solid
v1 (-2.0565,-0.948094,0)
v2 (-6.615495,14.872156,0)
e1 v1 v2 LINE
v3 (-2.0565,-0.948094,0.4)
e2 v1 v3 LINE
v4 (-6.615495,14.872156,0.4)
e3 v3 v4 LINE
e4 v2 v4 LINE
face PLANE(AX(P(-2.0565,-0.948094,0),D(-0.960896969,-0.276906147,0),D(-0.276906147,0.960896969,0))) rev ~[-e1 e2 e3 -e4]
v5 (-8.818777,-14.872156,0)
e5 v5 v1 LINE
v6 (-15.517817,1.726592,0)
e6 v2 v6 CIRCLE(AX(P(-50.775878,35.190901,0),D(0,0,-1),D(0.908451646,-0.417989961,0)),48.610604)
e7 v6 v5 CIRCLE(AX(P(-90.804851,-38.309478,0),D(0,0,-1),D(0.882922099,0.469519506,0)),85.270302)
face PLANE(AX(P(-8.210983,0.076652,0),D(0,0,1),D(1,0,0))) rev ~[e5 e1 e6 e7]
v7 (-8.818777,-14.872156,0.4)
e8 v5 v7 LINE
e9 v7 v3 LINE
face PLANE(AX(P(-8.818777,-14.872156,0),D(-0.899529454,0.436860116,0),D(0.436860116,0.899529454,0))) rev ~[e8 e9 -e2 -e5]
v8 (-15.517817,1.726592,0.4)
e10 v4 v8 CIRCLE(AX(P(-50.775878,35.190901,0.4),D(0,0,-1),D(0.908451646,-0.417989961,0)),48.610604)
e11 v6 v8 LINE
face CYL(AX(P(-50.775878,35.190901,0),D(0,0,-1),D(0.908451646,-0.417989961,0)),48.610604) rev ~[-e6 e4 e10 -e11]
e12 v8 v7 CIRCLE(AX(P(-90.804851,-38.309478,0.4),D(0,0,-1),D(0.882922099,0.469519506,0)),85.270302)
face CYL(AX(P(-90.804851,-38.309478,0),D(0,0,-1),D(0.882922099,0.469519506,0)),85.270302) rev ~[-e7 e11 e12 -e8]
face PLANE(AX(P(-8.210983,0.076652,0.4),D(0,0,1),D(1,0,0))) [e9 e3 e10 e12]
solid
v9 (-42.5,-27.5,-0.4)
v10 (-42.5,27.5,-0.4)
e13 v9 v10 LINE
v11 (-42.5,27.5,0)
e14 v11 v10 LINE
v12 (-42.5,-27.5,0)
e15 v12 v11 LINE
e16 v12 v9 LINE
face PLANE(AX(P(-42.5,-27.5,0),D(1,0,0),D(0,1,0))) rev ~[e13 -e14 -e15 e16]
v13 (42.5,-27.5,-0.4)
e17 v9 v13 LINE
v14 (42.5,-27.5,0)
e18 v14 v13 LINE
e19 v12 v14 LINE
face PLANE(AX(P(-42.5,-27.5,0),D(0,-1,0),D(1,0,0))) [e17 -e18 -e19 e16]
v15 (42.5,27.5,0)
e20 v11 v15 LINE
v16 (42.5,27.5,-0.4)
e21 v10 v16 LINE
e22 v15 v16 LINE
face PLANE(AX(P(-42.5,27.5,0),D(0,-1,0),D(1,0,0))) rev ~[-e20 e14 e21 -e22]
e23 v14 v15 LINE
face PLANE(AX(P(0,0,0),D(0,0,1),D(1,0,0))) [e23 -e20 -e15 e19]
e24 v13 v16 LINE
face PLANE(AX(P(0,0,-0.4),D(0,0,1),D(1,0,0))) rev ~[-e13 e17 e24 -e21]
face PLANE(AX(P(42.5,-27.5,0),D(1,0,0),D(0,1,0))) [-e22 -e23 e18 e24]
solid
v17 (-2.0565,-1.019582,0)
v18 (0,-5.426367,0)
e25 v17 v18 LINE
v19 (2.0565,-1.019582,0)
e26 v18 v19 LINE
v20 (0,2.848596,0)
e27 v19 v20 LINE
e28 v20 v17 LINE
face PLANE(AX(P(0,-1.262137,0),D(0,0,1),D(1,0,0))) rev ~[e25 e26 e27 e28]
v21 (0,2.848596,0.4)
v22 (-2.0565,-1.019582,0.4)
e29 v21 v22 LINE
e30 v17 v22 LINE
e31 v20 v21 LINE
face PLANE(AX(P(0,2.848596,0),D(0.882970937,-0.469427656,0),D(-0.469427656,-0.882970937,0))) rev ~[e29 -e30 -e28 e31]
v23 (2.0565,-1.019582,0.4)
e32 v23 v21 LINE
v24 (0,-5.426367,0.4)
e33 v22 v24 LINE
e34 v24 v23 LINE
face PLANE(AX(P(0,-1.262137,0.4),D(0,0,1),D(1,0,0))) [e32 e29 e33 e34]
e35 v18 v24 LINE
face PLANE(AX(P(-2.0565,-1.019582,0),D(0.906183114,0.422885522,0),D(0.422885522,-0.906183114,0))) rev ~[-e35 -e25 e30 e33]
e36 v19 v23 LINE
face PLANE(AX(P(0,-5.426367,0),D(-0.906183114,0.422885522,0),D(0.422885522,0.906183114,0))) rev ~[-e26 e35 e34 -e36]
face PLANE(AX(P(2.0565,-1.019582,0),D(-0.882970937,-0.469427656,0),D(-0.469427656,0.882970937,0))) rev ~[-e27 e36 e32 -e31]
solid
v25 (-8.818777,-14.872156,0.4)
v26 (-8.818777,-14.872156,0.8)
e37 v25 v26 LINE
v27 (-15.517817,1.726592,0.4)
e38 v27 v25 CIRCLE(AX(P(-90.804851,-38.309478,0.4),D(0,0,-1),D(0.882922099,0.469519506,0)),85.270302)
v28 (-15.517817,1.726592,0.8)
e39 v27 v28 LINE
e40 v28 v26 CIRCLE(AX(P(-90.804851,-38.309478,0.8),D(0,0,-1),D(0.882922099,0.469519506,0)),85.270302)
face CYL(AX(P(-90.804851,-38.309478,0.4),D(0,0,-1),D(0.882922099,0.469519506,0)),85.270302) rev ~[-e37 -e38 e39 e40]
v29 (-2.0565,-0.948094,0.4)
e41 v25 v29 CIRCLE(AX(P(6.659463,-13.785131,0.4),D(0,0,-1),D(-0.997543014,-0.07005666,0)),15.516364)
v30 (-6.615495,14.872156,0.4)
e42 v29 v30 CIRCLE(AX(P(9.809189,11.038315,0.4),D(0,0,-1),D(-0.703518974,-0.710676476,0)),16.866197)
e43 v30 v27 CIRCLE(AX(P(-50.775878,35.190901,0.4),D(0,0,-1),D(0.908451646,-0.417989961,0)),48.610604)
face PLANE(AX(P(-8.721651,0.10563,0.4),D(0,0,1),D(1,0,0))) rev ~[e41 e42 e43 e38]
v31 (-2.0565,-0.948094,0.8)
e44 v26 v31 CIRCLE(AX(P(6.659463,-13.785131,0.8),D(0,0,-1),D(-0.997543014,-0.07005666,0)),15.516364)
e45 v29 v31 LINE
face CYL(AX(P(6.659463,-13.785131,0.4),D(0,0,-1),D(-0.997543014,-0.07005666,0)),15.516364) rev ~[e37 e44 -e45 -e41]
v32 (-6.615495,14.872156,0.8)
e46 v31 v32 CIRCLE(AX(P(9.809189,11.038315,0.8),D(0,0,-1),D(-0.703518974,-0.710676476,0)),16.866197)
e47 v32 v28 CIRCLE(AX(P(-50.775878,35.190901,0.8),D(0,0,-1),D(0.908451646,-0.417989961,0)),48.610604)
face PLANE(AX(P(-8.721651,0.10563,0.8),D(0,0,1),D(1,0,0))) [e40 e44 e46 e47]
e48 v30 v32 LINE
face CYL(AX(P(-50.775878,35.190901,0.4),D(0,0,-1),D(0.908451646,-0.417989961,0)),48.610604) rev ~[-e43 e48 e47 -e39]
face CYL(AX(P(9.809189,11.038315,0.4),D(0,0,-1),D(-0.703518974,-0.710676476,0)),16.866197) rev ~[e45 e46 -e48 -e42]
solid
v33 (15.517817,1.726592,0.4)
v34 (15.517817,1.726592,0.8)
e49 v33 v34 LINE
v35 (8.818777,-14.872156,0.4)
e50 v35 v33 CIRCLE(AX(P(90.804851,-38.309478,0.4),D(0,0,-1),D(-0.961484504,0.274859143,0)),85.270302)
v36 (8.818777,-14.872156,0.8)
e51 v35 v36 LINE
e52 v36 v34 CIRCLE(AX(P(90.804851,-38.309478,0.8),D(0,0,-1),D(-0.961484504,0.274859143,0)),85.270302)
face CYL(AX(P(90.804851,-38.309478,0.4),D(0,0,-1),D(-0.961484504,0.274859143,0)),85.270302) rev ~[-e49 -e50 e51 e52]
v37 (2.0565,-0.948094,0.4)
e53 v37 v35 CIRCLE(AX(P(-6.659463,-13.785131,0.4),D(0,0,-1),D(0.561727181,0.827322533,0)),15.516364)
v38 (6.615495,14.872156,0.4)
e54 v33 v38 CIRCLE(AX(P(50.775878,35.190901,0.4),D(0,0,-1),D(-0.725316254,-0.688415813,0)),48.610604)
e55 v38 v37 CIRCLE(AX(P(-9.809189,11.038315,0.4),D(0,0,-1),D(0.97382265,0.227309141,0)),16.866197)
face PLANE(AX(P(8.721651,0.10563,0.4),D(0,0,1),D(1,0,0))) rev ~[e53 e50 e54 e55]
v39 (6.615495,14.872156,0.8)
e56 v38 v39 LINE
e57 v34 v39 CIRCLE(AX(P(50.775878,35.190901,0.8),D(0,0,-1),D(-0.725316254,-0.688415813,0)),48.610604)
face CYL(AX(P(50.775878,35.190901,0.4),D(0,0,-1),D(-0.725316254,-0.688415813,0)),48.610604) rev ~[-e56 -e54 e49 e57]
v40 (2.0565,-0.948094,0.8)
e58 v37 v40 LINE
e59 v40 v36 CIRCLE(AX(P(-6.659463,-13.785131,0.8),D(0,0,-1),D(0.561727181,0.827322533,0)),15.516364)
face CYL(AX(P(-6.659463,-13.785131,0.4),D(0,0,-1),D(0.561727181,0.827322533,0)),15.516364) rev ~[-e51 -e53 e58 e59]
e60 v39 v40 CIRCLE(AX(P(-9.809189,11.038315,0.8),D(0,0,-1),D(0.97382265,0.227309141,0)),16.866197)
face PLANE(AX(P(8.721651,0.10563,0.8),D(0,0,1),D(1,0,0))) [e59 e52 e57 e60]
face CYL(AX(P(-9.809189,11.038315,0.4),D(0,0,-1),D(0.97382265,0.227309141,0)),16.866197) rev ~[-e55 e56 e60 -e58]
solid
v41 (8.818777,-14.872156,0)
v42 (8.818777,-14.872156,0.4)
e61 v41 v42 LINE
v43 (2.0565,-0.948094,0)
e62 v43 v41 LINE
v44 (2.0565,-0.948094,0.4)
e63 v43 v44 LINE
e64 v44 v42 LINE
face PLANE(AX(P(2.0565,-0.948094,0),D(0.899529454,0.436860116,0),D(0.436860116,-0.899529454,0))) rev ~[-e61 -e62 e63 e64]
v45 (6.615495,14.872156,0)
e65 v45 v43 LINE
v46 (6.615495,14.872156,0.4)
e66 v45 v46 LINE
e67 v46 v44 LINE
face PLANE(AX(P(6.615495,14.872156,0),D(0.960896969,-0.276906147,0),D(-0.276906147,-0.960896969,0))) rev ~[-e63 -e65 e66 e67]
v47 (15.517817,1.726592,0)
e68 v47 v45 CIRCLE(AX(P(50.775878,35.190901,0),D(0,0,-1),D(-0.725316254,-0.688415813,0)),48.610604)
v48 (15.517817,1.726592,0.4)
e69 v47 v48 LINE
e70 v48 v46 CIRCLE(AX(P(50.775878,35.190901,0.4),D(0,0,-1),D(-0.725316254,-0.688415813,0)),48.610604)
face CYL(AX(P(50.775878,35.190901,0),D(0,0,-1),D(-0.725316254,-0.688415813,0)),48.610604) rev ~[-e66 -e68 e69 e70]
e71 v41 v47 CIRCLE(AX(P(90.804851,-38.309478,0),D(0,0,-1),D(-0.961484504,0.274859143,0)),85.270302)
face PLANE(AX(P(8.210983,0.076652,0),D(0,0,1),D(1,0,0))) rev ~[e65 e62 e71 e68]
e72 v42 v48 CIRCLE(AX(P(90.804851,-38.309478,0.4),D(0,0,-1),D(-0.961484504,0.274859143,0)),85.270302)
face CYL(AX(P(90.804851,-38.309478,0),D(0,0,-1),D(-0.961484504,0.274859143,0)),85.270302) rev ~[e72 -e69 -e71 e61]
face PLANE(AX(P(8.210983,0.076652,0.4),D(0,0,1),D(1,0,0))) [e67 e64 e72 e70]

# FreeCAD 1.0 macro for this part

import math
import FreeCAD as App
import Part
import Sketcher

V = App.Vector
Q = App.Units.Quantity


def add_polygon(sketch, points):
    """Adds a closed chain of lines whose ends are joined by coincident constraints."""
    first, n = sketch.GeometryCount, len(points)
    for a, b in zip(points, points[1:] + points[:1]):
        sketch.addGeometry(Part.LineSegment(App.Vector(*a, 0), App.Vector(*b, 0)), False)
    for i in range(n):
        sketch.addConstraint(Sketcher.Constraint("Coincident", first + i, 2, first + (i + 1) % n, 1))

doc = App.newDocument("Part")
body = doc.addObject("PartDesign::Body", "Body")
body.AllowCompound = True

# Sketch on XY plane
sketch1 = body.newObject("Sketcher::SketchObject", "Sketch")
sketch1.AttachmentSupport = (doc.getObject("XY_Plane"), [""])
sketch1.MapMode = "FlatFace"
add_polygon(sketch1, [(-2.1, -1), (0, -5.4), (2.1, -1), (0, 2.8)])  # lines 0-3
sketch1.addGeometry(Part.ArcOfCircle(Part.Circle(V(50.8, 35.2, 0), V(0, 0, 1), 48.6), math.radians(-155.29), math.radians(-136.5)), False)  # 4
sketch1.addGeometry(Part.LineSegment(V(6.6, 14.9, 0), V(2.1, -0.9, 0)), False)  # 5
sketch1.addGeometry(Part.LineSegment(V(2.1, -0.9, 0), V(8.8, -14.9, 0)), False)  # 6
sketch1.addGeometry(Part.ArcOfCircle(Part.Circle(V(90.8, -38.3, 0), V(0, 0, 1), 85.3), math.radians(152), math.radians(164.05)), False)  # 7
sketch1.addGeometry(Part.LineSegment(V(-2.1, -0.9, 0), V(-6.6, 14.9, 0)), False)  # 8
sketch1.addGeometry(Part.ArcOfCircle(Part.Circle(V(-50.8, 35.2, 0), V(0, 0, 1), 48.6), math.radians(-43.5), math.radians(-24.71)), False)  # 9
sketch1.addGeometry(Part.ArcOfCircle(Part.Circle(V(-90.8, -38.3, 0), V(0, 0, 1), 85.3), math.radians(15.95), math.radians(28)), False)  # 10
sketch1.addGeometry(Part.LineSegment(V(-8.8, -14.9, 0), V(-2.1, -0.9, 0)), False)  # 11
sketch1.addConstraint([
    Sketcher.Constraint("Coincident", 4, 1, 5, 1),
    Sketcher.Constraint("Coincident", 5, 2, 6, 1),
    Sketcher.Constraint("Coincident", 6, 2, 7, 2),
    Sketcher.Constraint("Coincident", 7, 1, 4, 2),
    Sketcher.Constraint("Coincident", 8, 2, 9, 2),
    Sketcher.Constraint("Coincident", 9, 1, 10, 2),
    Sketcher.Constraint("Coincident", 10, 1, 11, 1),
    Sketcher.Constraint("Coincident", 11, 2, 8, 1),
    Sketcher.Constraint("Equal", 4, 9),
    Sketcher.Constraint("Equal", 7, 10),
    Sketcher.Constraint("Symmetric", 4, 3, 9, 3, -2),
    Sketcher.Constraint("Symmetric", 7, 3, 10, 3, -2),
    Sketcher.Constraint("Symmetric", 1, 2, 3, 2, -2),
    Sketcher.Constraint("Symmetric", 5, 2, 11, 2, -2),
    Sketcher.Constraint("PointOnObject", 0, 2, -2),
    Sketcher.Constraint("PointOnObject", 2, 2, -2),
    Sketcher.Constraint("Horizontal", 4, 1, 8, 2),
    Sketcher.Constraint("Horizontal", 6, 2, 10, 1),
    Sketcher.Constraint("Vertical", 1, 2, 5, 2),
    Sketcher.Constraint("Radius", 4, Q("48.610604 mm")),
    Sketcher.Constraint("Radius", 7, Q("85.270302 mm")),
    Sketcher.Constraint("DistanceX", 3, 2, 1, 2, Q("4.113 mm")),
    Sketcher.Constraint("DistanceY", -1, 1, 4, 3, Q("35.190901 mm")),
    Sketcher.Constraint("Distance", 0, Q("4.863018 mm")),
    Sketcher.Constraint("DistanceX", -1, 1, 4, 3, Q("50.775878 mm")),
    Sketcher.Constraint("DistanceX", -1, 1, 7, 3, Q("90.804851 mm")),
    Sketcher.Constraint("DistanceY", 7, 3, -1, 1, Q("38.309478 mm")),
    Sketcher.Constraint("DistanceY", 7, 3, 0, 2, Q("32.883111 mm")),
    Sketcher.Constraint("DistanceY", 1, 2, 2, 2, Q("3.868178 mm")),
    Sketcher.Constraint("DistanceY", 2, 2, 4, 1, Q("12.02356 mm")),
    Sketcher.Constraint("DistanceY", 5, 2, 2, 2, Q("3.79669 mm")),
    Sketcher.Constraint("DistanceY", 6, 2, 0, 2, Q("9.445789 mm")),
])
pad1 = body.newObject("PartDesign::Pad", "Pad")
pad1.Profile = sketch1
pad1.Length = 0.4
body2 = doc.addObject("PartDesign::Body", "Body001")

# Sketch on XY plane
sketch2 = body2.newObject("Sketcher::SketchObject", "Sketch001")
sketch2.AttachmentSupport = (doc.getObject("XY_Plane001"), [""])
sketch2.MapMode = "FlatFace"
add_polygon(sketch2, [(-42, 28), (-42, -28), (42, -28), (42, 28)])  # lines 0-3
sketch2.addConstraint([
    Sketcher.Constraint("Vertical", 0),
    Sketcher.Constraint("Horizontal", 1),
    Sketcher.Constraint("Vertical", 2),
    Sketcher.Constraint("Horizontal", 3),
    Sketcher.Constraint("Symmetric", 0, 2, 2, 2, -1, 1),
    Sketcher.Constraint("DistanceX", 1, 1, 1, 2, Q("85 mm")),
    Sketcher.Constraint("DistanceY", 0, 2, 0, 1, Q("55 mm")),
])
pad2 = body2.newObject("PartDesign::Pad", "Pad001")
pad2.Profile = sketch2
pad2.Length = 0.4
pad2.Reversed = True
body3 = doc.addObject("PartDesign::Body", "Body002")
body3.AllowCompound = True

# Sketch on XY plane
sketch3 = body3.newObject("Sketcher::SketchObject", "Sketch002")
sketch3.AttachmentSupport = (doc.getObject("XY_Plane002"), [""])
sketch3.MapMode = "FlatFace"
sketch3.AttachmentOffset = App.Placement(V(0, 0, 0.4), App.Rotation())
sketch3.addGeometry([
    Part.ArcOfCircle(Part.Circle(V(7, -14, 0), V(0, 0, 1), 16), math.radians(124), math.radians(184)),  # 0
    Part.ArcOfCircle(Part.Circle(V(10, 11, 0), V(0, 0, 1), 17), math.radians(167), math.radians(225)),  # 1
    Part.ArcOfCircle(Part.Circle(V(-51, 35, 0), V(0, 0, 1), 49), math.radians(-43.5), math.radians(-24.71)),  # 2
    Part.ArcOfCircle(Part.Circle(V(-91, -38, 0), V(0, 0, 1), 85), math.radians(15.95), math.radians(28)),  # 3
    Part.ArcOfCircle(Part.Circle(V(-10, 11, 0), V(0, 0, 1), 17), math.radians(-45), math.radians(13)),  # 4
    Part.ArcOfCircle(Part.Circle(V(-7, -14, 0), V(0, 0, 1), 16), math.radians(-4), math.radians(56)),  # 5
    Part.ArcOfCircle(Part.Circle(V(91, -38, 0), V(0, 0, 1), 85), math.radians(152), math.radians(164.05)),  # 6
    Part.ArcOfCircle(Part.Circle(V(51, 35, 0), V(0, 0, 1), 49), math.radians(-155.29), math.radians(-136.5)),  # 7
], False)
sketch3.addConstraint([
    Sketcher.Constraint("Coincident", 0, 1, 1, 2),
    Sketcher.Constraint("Coincident", 1, 1, 2, 2),
    Sketcher.Constraint("Coincident", 2, 1, 3, 2),
    Sketcher.Constraint("Coincident", 3, 1, 0, 2),
    Sketcher.Constraint("Coincident", 4, 1, 5, 2),
    Sketcher.Constraint("Coincident", 5, 1, 6, 2),
    Sketcher.Constraint("Coincident", 6, 1, 7, 2),
    Sketcher.Constraint("Coincident", 7, 1, 4, 2),
    Sketcher.Constraint("Equal", 1, 4),
    Sketcher.Constraint("Equal", 0, 5),
    Sketcher.Constraint("Equal", 3, 6),
    Sketcher.Constraint("Equal", 2, 7),
    Sketcher.Constraint("Symmetric", 1, 3, 4, 3, -2),
    Sketcher.Constraint("Symmetric", 0, 3, 5, 3, -2),
    Sketcher.Constraint("Symmetric", 3, 3, 6, 3, -2),
    Sketcher.Constraint("Symmetric", 2, 3, 7, 3, -2),
    Sketcher.Constraint("Radius", 0, Q("15.516364 mm")),
    Sketcher.Constraint("Radius", 1, Q("16.866197 mm")),
    Sketcher.Constraint("Radius", 2, Q("48.610604 mm")),
    Sketcher.Constraint("Radius", 3, Q("85.270302 mm")),
    Sketcher.Constraint("DistanceX", 0, 1, 4, 1, Q("4.113 mm")),
    Sketcher.Constraint("DistanceY", -1, 1, 2, 3, Q("35.190901 mm")),
    Sketcher.Constraint("DistanceY", 0, 3, -1, 1, Q("13.785131 mm")),
    Sketcher.Constraint("DistanceX", -1, 1, 1, 3, Q("9.809189 mm")),
    Sketcher.Constraint("DistanceX", 2, 3, -1, 1, Q("50.775878 mm")),
    Sketcher.Constraint("DistanceX", 3, 3, -1, 1, Q("90.804851 mm")),
    Sketcher.Constraint("DistanceY", 3, 3, -1, 1, Q("38.309478 mm")),
    Sketcher.Constraint("DistanceX", 2, 3, 0, 3, Q("57.435342 mm")),
])
pad3 = body3.newObject("PartDesign::Pad", "Pad002")
pad3.Profile = sketch3
pad3.Length = 0.4

doc.recompute()
